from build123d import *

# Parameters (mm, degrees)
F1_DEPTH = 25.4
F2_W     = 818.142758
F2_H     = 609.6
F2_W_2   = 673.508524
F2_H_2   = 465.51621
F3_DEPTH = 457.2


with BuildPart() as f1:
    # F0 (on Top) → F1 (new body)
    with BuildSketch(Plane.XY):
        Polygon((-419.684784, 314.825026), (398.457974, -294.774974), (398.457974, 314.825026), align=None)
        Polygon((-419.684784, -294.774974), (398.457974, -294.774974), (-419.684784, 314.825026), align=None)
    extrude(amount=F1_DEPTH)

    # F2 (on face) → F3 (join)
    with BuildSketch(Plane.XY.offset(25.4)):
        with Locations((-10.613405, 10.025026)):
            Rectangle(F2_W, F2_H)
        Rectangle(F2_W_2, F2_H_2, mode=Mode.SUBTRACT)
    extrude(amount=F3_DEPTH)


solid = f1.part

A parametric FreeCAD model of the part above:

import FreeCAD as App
import Part
import Sketcher

V = App.Vector
Q = App.Units.Quantity

doc = App.newDocument("Part")
params = doc.addObject("Spreadsheet::Sheet", "Params")
for row, (alias, value) in enumerate([
    ("sketch1_height", "24 in"),
    ("pad1_length", "1 in"),
    ("sketch2_height", "24 in"),
    ("pad2_length", "18 in"),
], start=1):
    params.set(f"A{row}", alias)
    params.set(f"B{row}", "=" + value)
    params.setAlias(f"B{row}", alias)

body = doc.addObject("PartDesign::Body", "Body")

# Sketch on XY plane
sketch1 = body.newObject("Sketcher::SketchObject", "Sketch")
sketch1.AttachmentSupport = (doc.getObject("XY_Plane"), [""])
sketch1.MapMode = "FlatFace"
sketch1.addGeometry([
    Part.LineSegment(V(398.457974, -294.774974, 0), V(398.457974, 314.825026, 0)),
    Part.LineSegment(V(398.457974, 314.825026, 0), V(-419.684784, 314.825026, 0)),
    Part.LineSegment(V(-419.684784, 314.825026, 0), V(-419.684784, -294.774974, 0)),
    Part.LineSegment(V(-419.684784, -294.774974, 0), V(398.457974, -294.774974, 0)),
], False)
sketch1.addConstraint([
    Sketcher.Constraint("Coincident", 0, 2, 1, 1),
    Sketcher.Constraint("Coincident", 1, 2, 2, 1),
    Sketcher.Constraint("Coincident", 2, 2, 3, 1),
    Sketcher.Constraint("Coincident", 3, 2, 0, 1),
    Sketcher.Constraint("Vertical", 0),
    Sketcher.Constraint("Horizontal", 1),
    Sketcher.Constraint("Vertical", 2),
    Sketcher.Constraint("Horizontal", 3),
    Sketcher.Constraint("DistanceY", 0, 1, 0, 2, Q("24 in")),
    Sketcher.Constraint("DistanceX", 1, 2, 1, 1, Q("818.142758 mm")),
    Sketcher.Constraint("DistanceX", -1, 1, 0, 2, Q("398.457974 mm")),
    Sketcher.Constraint("DistanceY", -1, 1, 0, 2, Q("314.825026 mm")),
])
sketch1.setExpression("Constraints[8]", "Params.sketch1_height")
pad1 = body.newObject("PartDesign::Pad", "Pad")
pad1.Profile = sketch1
pad1.setExpression("Length", "Params.pad1_length")

# Sketch on XY plane
sketch2 = body.newObject("Sketcher::SketchObject", "Sketch001")
sketch2.AttachmentSupport = (doc.getObject("XY_Plane"), [""])
sketch2.MapMode = "FlatFace"
sketch2.AttachmentOffset = App.Placement(V(0, 0, 1 * 25.4), App.Rotation())
sketch2.addGeometry([
    Part.LineSegment(V(-419.684784, 314.825026, 0), V(-419.684784, -294.774974, 0)),  # 0
    Part.LineSegment(V(-419.684784, -294.774974, 0), V(398.457974, -294.774974, 0)),  # 1
    Part.LineSegment(V(398.457974, -294.774974, 0), V(398.457974, 314.825026, 0)),  # 2
    Part.LineSegment(V(398.457974, 314.825026, 0), V(-419.684784, 314.825026, 0)),  # 3
    Part.LineSegment(V(336.754262, -232.758105, 0), V(-336.754262, -232.758105, 0)),  # 4
    Part.LineSegment(V(-336.754262, -232.758105, 0), V(-336.754262, 232.758105, 0)),  # 5
    Part.LineSegment(V(-336.754262, 232.758105, 0), V(336.754262, 232.758105, 0)),  # 6
    Part.LineSegment(V(336.754262, 232.758105, 0), V(336.754262, -232.758105, 0)),  # 7
], False)
sketch2.addConstraint([
    Sketcher.Constraint("Coincident", 0, 2, 1, 1),
    Sketcher.Constraint("Coincident", 1, 2, 2, 1),
    Sketcher.Constraint("Coincident", 2, 2, 3, 1),
    Sketcher.Constraint("Coincident", 3, 2, 0, 1),
    Sketcher.Constraint("Coincident", 4, 2, 5, 1),
    Sketcher.Constraint("Coincident", 5, 2, 6, 1),
    Sketcher.Constraint("Coincident", 6, 2, 7, 1),
    Sketcher.Constraint("Coincident", 7, 2, 4, 1),
    Sketcher.Constraint("Vertical", 0),
    Sketcher.Constraint("Horizontal", 1),
    Sketcher.Constraint("Vertical", 2),
    Sketcher.Constraint("Horizontal", 3),
    Sketcher.Constraint("Horizontal", 4),
    Sketcher.Constraint("Vertical", 5),
    Sketcher.Constraint("Horizontal", 6),
    Sketcher.Constraint("Vertical", 7),
    Sketcher.Constraint("Symmetric", 4, 2, 6, 2, -1, 1),
    Sketcher.Constraint("DistanceY", 0, 2, 0, 1, Q("24 in")),
    Sketcher.Constraint("DistanceX", 1, 1, 1, 2, Q("818.142758 mm")),
    Sketcher.Constraint("DistanceY", 5, 1, 5, 2, Q("465.51621 mm")),
    Sketcher.Constraint("DistanceX", 4, 2, 4, 1, Q("673.508524 mm")),
    Sketcher.Constraint("DistanceX", 0, 2, 4, 2, Q("82.930522 mm")),
    Sketcher.Constraint("DistanceY", 0, 2, 4, 2, Q("62.016869 mm")),
])
sketch2.setExpression("Constraints[17]", "Params.sketch2_height")
pad2 = body.newObject("PartDesign::Pad", "Pad001")
pad2.Profile = sketch2
pad2.setExpression("Length", "Params.pad2_length")

doc.recompute()
